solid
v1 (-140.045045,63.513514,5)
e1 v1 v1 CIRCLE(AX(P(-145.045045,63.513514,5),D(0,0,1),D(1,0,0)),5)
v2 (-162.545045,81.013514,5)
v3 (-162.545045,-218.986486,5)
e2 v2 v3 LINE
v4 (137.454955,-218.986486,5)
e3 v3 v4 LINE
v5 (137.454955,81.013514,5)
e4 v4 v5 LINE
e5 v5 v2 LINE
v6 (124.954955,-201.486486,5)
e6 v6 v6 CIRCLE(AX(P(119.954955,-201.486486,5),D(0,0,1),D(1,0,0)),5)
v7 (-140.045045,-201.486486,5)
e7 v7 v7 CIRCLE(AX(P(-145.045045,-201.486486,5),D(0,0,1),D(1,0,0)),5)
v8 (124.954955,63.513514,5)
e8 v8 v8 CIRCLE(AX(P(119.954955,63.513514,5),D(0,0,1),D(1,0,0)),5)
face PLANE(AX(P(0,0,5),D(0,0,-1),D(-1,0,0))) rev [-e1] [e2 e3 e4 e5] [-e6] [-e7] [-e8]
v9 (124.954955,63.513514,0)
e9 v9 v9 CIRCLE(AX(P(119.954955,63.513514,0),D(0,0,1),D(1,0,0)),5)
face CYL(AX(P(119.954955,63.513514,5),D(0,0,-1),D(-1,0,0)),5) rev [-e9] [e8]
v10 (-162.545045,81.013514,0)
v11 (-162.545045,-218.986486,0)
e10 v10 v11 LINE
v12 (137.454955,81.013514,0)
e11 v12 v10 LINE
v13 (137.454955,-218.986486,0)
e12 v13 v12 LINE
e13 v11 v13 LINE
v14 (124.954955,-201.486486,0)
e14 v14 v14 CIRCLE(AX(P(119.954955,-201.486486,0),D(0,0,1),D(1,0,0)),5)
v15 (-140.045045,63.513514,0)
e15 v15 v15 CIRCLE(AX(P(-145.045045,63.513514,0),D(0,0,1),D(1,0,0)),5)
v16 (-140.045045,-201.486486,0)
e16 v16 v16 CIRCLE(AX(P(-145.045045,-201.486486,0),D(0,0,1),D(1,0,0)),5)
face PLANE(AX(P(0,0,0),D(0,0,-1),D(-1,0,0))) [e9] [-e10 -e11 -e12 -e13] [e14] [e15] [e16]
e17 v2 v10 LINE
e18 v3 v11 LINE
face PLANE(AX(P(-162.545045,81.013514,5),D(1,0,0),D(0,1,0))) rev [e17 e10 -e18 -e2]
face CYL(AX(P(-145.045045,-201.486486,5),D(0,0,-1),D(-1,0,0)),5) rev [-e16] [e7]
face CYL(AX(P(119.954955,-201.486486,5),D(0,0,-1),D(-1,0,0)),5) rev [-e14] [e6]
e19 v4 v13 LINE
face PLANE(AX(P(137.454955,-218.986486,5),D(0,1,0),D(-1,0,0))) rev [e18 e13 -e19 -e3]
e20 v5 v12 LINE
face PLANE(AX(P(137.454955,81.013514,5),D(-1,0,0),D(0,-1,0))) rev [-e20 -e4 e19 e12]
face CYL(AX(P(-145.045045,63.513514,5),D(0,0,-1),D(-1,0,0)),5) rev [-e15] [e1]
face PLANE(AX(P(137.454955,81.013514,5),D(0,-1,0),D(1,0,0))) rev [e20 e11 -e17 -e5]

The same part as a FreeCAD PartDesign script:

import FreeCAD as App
import Part
import Sketcher
from FreeCAD import Vector


def add_polygon(sketch, points):
    """Adds a closed chain of lines whose ends are joined by coincident constraints."""
    first, n = sketch.GeometryCount, len(points)
    for a, b in zip(points, points[1:] + points[:1]):
        sketch.addGeometry(Part.LineSegment(App.Vector(*a, 0), App.Vector(*b, 0)), False)
    for i in range(n):
        sketch.addConstraint(Sketcher.Constraint("Coincident", first + i, 2, first + (i + 1) % n, 1))

doc = App.newDocument("Part")
body = doc.addObject("PartDesign::Body", "Body")

sketch1 = body.newObject("Sketcher::SketchObject", "Sketch")
sketch1.AttachmentSupport = (doc.getObject("XY_Plane"), [""])
sketch1.MapMode = "FlatFace"
add_polygon(sketch1, [(-163, 81), (-163, -219), (137, -219), (137, 81)])
sketch1.addGeometry(Part.Circle(Vector(-145, -201, 0), Vector(0, 0, 1), 5), False)
sketch1.addGeometry(Part.Circle(Vector(120, -201, 0), Vector(0, 0, 1), 5), False)
sketch1.addGeometry(Part.Circle(Vector(-145, 64, 0), Vector(0, 0, 1), 5), False)
sketch1.addGeometry(Part.Circle(Vector(120, 64, 0), Vector(0, 0, 1), 5), False)
sketch1.addConstraint(Sketcher.Constraint("Vertical", 0))
sketch1.addConstraint(Sketcher.Constraint("Horizontal", 1))
sketch1.addConstraint(Sketcher.Constraint("Vertical", 2))
sketch1.addConstraint(Sketcher.Constraint("Horizontal", 3))
sketch1.addConstraint(Sketcher.Constraint("Equal", 4, 5))
sketch1.addConstraint(Sketcher.Constraint("Equal", 5, 6))
sketch1.addConstraint(Sketcher.Constraint("Equal", 6, 7))
sketch1.addConstraint(Sketcher.Constraint("Horizontal", 4, 3, 5, 3))
sketch1.addConstraint(Sketcher.Constraint("Horizontal", 6, 3, 7, 3))
sketch1.addConstraint(Sketcher.Constraint("Vertical", 4, 3, 6, 3))
sketch1.addConstraint(Sketcher.Constraint("Vertical", 5, 3, 7, 3))
sketch1.addConstraint(Sketcher.Constraint("Equal", 3, 0))
sketch1.addConstraint(Sketcher.Constraint("Diameter", 4, 10.0))
sketch1.addConstraint(Sketcher.Constraint("DistanceX", 1, 1, 1, 2, 300.0))
sketch1.addConstraint(Sketcher.Constraint("DistanceX", 4, 3, 5, 3, 265.0))
sketch1.addConstraint(Sketcher.Constraint("DistanceY", 4, 3, 6, 3, 265.0))
sketch1.addConstraint(Sketcher.Constraint("DistanceX", 0, 2, 4, 3, 17.5))
sketch1.addConstraint(Sketcher.Constraint("DistanceY", 0, 2, 4, 3, 17.5))
sketch1.addConstraint(Sketcher.Constraint("DistanceX", 4, 3, -1, 1, 145.045045))
sketch1.addConstraint(Sketcher.Constraint("DistanceY", 4, 3, -1, 1, 201.486486))
pad1 = body.newObject("PartDesign::Pad", "Pad")
pad1.Profile = sketch1
pad1.Length = 5

doc.recompute()
